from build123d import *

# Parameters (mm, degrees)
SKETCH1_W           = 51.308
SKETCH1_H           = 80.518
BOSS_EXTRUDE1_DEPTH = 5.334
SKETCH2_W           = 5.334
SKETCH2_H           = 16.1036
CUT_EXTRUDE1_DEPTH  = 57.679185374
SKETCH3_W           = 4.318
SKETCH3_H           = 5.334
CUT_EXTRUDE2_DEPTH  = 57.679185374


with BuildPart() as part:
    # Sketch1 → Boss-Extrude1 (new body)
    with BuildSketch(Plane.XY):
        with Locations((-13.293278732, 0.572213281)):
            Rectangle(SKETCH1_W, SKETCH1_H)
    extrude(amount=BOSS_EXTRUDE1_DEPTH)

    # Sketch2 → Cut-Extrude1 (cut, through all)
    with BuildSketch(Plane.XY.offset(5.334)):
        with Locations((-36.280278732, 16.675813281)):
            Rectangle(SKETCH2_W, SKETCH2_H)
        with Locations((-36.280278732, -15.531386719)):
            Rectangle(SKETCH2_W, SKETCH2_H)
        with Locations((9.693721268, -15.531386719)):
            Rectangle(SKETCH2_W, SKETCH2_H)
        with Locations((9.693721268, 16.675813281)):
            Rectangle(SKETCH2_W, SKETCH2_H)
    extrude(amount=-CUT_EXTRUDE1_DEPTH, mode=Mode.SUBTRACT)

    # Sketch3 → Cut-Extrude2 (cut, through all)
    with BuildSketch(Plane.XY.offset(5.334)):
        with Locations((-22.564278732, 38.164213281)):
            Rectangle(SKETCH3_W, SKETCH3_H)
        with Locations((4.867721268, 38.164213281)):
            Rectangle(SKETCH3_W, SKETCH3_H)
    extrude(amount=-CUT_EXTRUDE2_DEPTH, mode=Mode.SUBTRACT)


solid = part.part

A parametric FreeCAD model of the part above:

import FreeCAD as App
import Part
import Sketcher
from FreeCAD import Vector
Q = App.Units.Quantity


def add_polygon(sketch, points):
    """Adds a closed chain of lines whose ends are joined by coincident constraints."""
    first, n = sketch.GeometryCount, len(points)
    for a, b in zip(points, points[1:] + points[:1]):
        sketch.addGeometry(Part.LineSegment(App.Vector(*a, 0), App.Vector(*b, 0)), False)
    for i in range(n):
        sketch.addConstraint(Sketcher.Constraint("Coincident", first + i, 2, first + (i + 1) % n, 1))

doc = App.newDocument("Part")
body = doc.addObject("PartDesign::Body", "Body")

# Sketch on XY plane
sketch1 = body.newObject("Sketcher::SketchObject", "Sketch")
sketch1.AttachmentSupport = (doc.getObject("XY_Plane"), [""])
sketch1.MapMode = "FlatFace"
add_polygon(sketch1, [(-39, 41), (-39, -40), (12, -40), (12, 41)])  # lines 0-3
sketch1.addConstraint(Sketcher.Constraint("Vertical", 0))
sketch1.addConstraint(Sketcher.Constraint("Horizontal", 1))
sketch1.addConstraint(Sketcher.Constraint("Vertical", 2))
sketch1.addConstraint(Sketcher.Constraint("Horizontal", 3))
sketch1.addConstraint(Sketcher.Constraint("DistanceX", 1, 1, 1, 2, Q("2.02 in")))
sketch1.addConstraint(Sketcher.Constraint("DistanceY", 0, 2, 0, 1, Q("3.17 in")))
sketch1.addConstraint(Sketcher.Constraint("DistanceX", 0, 2, -1, 1, Q("38.947279 mm")))
sketch1.addConstraint(Sketcher.Constraint("DistanceY", 0, 2, -1, 1, Q("39.686787 mm")))
pad1 = body.newObject("PartDesign::Pad", "Pad")
pad1.Profile = sketch1
pad1.Length = Q("0.21 in")

# Sketch on XY plane
sketch2 = body.newObject("Sketcher::SketchObject", "Sketch001")
sketch2.AttachmentSupport = (doc.getObject("XY_Plane"), [""])
sketch2.MapMode = "FlatFace"
sketch2.AttachmentOffset = App.Placement(Vector(0, 0, 0.21 * 25.4), App.Rotation())
add_polygon(sketch2, [(-39, 25), (-39, 9), (-34, 9), (-34, 25)])  # lines 0-3
add_polygon(sketch2, [(-39, -7), (-39, -24), (-34, -24), (-34, -7)])  # lines 4-7
add_polygon(sketch2, [(7, -7), (7, -24), (12, -24), (12, -7)])  # lines 8-11
add_polygon(sketch2, [(7, 25), (7, 9), (12, 9), (12, 25)])  # lines 12-15
sketch2.addConstraint(Sketcher.Constraint("Vertical", 0))
sketch2.addConstraint(Sketcher.Constraint("Horizontal", 1))
sketch2.addConstraint(Sketcher.Constraint("Vertical", 2))
sketch2.addConstraint(Sketcher.Constraint("Horizontal", 3))
sketch2.addConstraint(Sketcher.Constraint("Vertical", 4))
sketch2.addConstraint(Sketcher.Constraint("Horizontal", 5))
sketch2.addConstraint(Sketcher.Constraint("Vertical", 6))
sketch2.addConstraint(Sketcher.Constraint("Horizontal", 7))
sketch2.addConstraint(Sketcher.Constraint("Vertical", 8))
sketch2.addConstraint(Sketcher.Constraint("Horizontal", 9))
sketch2.addConstraint(Sketcher.Constraint("Vertical", 10))
sketch2.addConstraint(Sketcher.Constraint("Horizontal", 11))
sketch2.addConstraint(Sketcher.Constraint("Vertical", 12))
sketch2.addConstraint(Sketcher.Constraint("Horizontal", 13))
sketch2.addConstraint(Sketcher.Constraint("Vertical", 14))
sketch2.addConstraint(Sketcher.Constraint("Horizontal", 15))
sketch2.addConstraint(Sketcher.Constraint("Horizontal", 5, 2, 8, 2))
sketch2.addConstraint(Sketcher.Constraint("Horizontal", 7, 2, 10, 2))
sketch2.addConstraint(Sketcher.Constraint("Horizontal", 1, 2, 12, 2))
sketch2.addConstraint(Sketcher.Constraint("Horizontal", 3, 2, 14, 2))
sketch2.addConstraint(Sketcher.Constraint("Vertical", 3, 2, 4, 2))
sketch2.addConstraint(Sketcher.Constraint("Vertical", 2, 2, 5, 2))
sketch2.addConstraint(Sketcher.Constraint("Vertical", 11, 2, 12, 2))
sketch2.addConstraint(Sketcher.Constraint("Vertical", 10, 2, 13, 2))
sketch2.addConstraint(Sketcher.Constraint("Equal", 7, 9))
sketch2.addConstraint(Sketcher.Constraint("Equal", 2, 4))
sketch2.addConstraint(Sketcher.Constraint("DistanceX", 1, 1, 1, 2, Q("0.21 in")))
sketch2.addConstraint(Sketcher.Constraint("DistanceX", 5, 2, 8, 2, Q("1.6 in")))
sketch2.addConstraint(Sketcher.Constraint("DistanceY", 0, 2, 0, 1, Q("0.634 in")))
sketch2.addConstraint(Sketcher.Constraint("DistanceY", 4, 2, 0, 2, Q("1.268 in")))
sketch2.addConstraint(Sketcher.Constraint("DistanceX", 0, 2, -1, 1, Q("38.947279 mm")))
sketch2.addConstraint(Sketcher.Constraint("DistanceY", -1, 1, 0, 2, Q("8.624013 mm")))
pocket1 = body.newObject("PartDesign::Pocket", "Pocket")
pocket1.Profile = sketch2
pocket1.Type = "ThroughAll"

# Sketch on XY plane
sketch3 = body.newObject("Sketcher::SketchObject", "Sketch002")
sketch3.AttachmentSupport = (doc.getObject("XY_Plane"), [""])
sketch3.MapMode = "FlatFace"
sketch3.AttachmentOffset = App.Placement(Vector(0, 0, 0.21 * 25.4), App.Rotation())
add_polygon(sketch3, [(-24.7, 40.8), (-24.7, 35.5), (-20.4, 35.5), (-20.4, 40.8)])  # lines 0-3
add_polygon(sketch3, [(2.7, 40.8), (2.7, 35.5), (7, 35.5), (7, 40.8)])  # lines 4-7
sketch3.addConstraint(Sketcher.Constraint("Vertical", 0))
sketch3.addConstraint(Sketcher.Constraint("Horizontal", 1))
sketch3.addConstraint(Sketcher.Constraint("Vertical", 2))
sketch3.addConstraint(Sketcher.Constraint("Horizontal", 3))
sketch3.addConstraint(Sketcher.Constraint("Vertical", 4))
sketch3.addConstraint(Sketcher.Constraint("Horizontal", 5))
sketch3.addConstraint(Sketcher.Constraint("Vertical", 6))
sketch3.addConstraint(Sketcher.Constraint("Horizontal", 7))
sketch3.addConstraint(Sketcher.Constraint("Horizontal", 1, 2, 4, 2))
sketch3.addConstraint(Sketcher.Constraint("Horizontal", 3, 2, 6, 2))
sketch3.addConstraint(Sketcher.Constraint("Equal", 3, 5))
sketch3.addConstraint(Sketcher.Constraint("DistanceX", 1, 1, 1, 2, Q("0.17 in")))
sketch3.addConstraint(Sketcher.Constraint("DistanceY", 0, 2, 0, 1, Q("0.21 in")))
sketch3.addConstraint(Sketcher.Constraint("DistanceX", 1, 2, 4, 2, Q("0.91 in")))
sketch3.addConstraint(Sketcher.Constraint("DistanceX", 0, 2, -1, 1, Q("24.723279 mm")))
sketch3.addConstraint(Sketcher.Constraint("DistanceY", -1, 1, 0, 2, Q("35.497213 mm")))
pocket2 = body.newObject("PartDesign::Pocket", "Pocket001")
pocket2.Profile = sketch3
pocket2.Type = "ThroughAll"

doc.recompute()
